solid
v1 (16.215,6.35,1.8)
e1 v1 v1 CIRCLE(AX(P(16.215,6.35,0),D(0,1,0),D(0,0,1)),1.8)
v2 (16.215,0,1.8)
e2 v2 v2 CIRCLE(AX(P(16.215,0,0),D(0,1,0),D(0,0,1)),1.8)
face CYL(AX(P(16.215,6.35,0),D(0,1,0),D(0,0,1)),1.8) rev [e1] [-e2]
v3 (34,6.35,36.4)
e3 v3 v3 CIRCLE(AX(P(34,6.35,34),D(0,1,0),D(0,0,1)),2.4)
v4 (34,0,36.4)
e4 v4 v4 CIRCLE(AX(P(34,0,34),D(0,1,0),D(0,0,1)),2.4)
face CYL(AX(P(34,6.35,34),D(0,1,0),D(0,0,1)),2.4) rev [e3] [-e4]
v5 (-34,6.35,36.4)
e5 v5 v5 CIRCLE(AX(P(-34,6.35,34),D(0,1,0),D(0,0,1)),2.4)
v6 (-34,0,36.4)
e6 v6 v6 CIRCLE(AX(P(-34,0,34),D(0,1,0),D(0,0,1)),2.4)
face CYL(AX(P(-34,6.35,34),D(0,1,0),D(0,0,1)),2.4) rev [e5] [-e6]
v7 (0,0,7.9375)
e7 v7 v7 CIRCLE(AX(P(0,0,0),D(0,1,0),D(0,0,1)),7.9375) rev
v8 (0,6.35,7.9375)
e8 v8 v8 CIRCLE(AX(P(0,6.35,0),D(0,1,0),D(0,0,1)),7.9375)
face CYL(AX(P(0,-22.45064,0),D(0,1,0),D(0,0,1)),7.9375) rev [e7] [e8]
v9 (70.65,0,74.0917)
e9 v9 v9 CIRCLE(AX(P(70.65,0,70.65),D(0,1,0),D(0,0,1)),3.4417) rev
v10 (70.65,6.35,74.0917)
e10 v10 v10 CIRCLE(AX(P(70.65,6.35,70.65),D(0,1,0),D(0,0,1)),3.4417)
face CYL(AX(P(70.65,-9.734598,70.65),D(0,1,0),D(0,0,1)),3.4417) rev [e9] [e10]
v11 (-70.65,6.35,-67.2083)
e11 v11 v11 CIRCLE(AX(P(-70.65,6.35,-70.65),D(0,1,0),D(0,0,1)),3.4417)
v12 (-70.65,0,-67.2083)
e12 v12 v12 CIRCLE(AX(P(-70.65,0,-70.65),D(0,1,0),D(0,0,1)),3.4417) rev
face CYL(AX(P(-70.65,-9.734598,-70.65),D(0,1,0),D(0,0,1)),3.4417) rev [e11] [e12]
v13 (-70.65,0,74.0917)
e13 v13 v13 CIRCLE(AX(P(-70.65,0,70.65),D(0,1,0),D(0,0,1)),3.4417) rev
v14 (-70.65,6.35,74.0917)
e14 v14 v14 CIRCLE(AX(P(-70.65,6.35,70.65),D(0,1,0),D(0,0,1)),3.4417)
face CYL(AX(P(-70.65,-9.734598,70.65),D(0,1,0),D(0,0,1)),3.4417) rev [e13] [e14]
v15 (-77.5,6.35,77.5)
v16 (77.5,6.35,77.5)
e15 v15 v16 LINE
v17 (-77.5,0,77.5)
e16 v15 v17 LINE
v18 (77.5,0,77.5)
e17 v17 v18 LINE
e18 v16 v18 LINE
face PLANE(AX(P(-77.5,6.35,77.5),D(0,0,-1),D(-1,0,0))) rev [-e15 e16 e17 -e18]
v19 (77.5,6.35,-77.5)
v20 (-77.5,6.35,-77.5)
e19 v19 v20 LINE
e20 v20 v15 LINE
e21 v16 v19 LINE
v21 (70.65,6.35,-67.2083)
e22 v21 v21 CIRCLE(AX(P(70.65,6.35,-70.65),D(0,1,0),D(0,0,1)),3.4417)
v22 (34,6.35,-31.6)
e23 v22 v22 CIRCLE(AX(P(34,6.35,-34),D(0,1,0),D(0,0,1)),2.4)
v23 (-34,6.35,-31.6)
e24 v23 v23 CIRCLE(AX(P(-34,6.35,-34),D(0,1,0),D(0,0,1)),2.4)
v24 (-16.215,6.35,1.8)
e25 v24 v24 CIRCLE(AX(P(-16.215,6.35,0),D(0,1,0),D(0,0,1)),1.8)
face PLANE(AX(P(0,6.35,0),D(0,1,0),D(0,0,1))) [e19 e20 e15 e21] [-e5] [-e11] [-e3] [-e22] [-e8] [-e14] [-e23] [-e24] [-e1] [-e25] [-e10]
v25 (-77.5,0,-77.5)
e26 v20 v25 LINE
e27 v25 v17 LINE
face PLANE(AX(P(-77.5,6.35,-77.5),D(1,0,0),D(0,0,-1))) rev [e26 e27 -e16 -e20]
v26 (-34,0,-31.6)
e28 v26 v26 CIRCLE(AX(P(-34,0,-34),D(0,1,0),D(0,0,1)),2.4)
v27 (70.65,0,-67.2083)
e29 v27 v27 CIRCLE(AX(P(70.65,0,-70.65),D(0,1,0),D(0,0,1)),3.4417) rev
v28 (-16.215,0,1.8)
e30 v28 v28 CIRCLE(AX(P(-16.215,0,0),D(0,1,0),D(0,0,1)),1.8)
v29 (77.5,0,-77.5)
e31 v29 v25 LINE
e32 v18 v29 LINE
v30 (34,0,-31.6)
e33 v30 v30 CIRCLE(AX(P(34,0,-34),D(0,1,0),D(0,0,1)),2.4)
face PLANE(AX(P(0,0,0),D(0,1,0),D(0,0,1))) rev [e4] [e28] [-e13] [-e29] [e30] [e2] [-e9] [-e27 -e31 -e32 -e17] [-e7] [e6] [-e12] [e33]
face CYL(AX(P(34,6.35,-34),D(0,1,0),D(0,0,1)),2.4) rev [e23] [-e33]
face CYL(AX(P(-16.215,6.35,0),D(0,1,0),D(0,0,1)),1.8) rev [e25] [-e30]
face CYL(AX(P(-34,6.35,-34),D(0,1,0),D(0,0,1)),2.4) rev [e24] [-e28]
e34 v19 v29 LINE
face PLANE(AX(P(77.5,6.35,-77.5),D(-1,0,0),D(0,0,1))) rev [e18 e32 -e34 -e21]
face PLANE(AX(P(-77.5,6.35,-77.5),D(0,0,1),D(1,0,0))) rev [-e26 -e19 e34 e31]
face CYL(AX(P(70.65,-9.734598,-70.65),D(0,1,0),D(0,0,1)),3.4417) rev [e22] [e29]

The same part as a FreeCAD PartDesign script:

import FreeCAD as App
import Part
import Sketcher
Q = App.Units.Quantity


def add_polygon(sketch, points):
    """Adds a closed chain of lines whose ends are joined by coincident constraints."""
    first, n = sketch.GeometryCount, len(points)
    for a, b in zip(points, points[1:] + points[:1]):
        sketch.addGeometry(Part.LineSegment(App.Vector(*a, 0), App.Vector(*b, 0)), False)
    for i in range(n):
        sketch.addConstraint(Sketcher.Constraint("Coincident", first + i, 2, first + (i + 1) % n, 1))

doc = App.newDocument("Part")
body = doc.addObject("PartDesign::Body", "Body")

sketch1 = body.newObject("Sketcher::SketchObject", "Sketch")
sketch1.AttachmentSupport = (doc.getObject("XZ_Plane"), [""])
sketch1.MapMode = "FlatFace"
add_polygon(sketch1, [(-78, -78), (-78, 78), (78, 78), (78, -78)])
sketch1.addConstraint([
    Sketcher.Constraint("Vertical", 0),
    Sketcher.Constraint("Horizontal", 1),
    Sketcher.Constraint("Vertical", 2),
    Sketcher.Constraint("Horizontal", 3),
    Sketcher.Constraint("Symmetric", 0, 2, 2, 2, -1, 1),
    Sketcher.Constraint("Equal", 3, 0),
    Sketcher.Constraint("DistanceX", 1, 1, 1, 2, Q("155 mm")),
])
pad1 = body.newObject("PartDesign::Pad", "Pad")
pad1.Profile = sketch1
pad1.Length = 6.35
pad1.Reversed = True

sketch2 = body.newObject("Sketcher::SketchObject", "Sketch001")
sketch2.AttachmentSupport = (doc.getObject("XZ_Plane"), [""])
sketch2.MapMode = "FlatFace"
sketch2.AttachmentOffset = App.Placement(App.Vector(0, 0, -6.35), App.Rotation())
sketch2.addGeometry([
    Part.Circle(App.Vector(-70.7, -70.7, 0), App.Vector(0, 0, 1), 3.4),
    Part.Circle(App.Vector(70.7, -70.7, 0), App.Vector(0, 0, 1), 3.4),
    Part.Circle(App.Vector(70.7, 70.7, 0), App.Vector(0, 0, 1), 3.4),
    Part.Circle(App.Vector(-70.7, 70.7, 0), App.Vector(0, 0, 1), 3.4),
], False)
sketch2.addConstraint([
    Sketcher.Constraint("Equal", 0, 1),
    Sketcher.Constraint("Equal", 1, 2),
    Sketcher.Constraint("Equal", 2, 3),
    Sketcher.Constraint("Symmetric", 0, 3, 2, 3, -1, 1),
    Sketcher.Constraint("Symmetric", 1, 3, 3, 3, -1, 1),
    Sketcher.Constraint("Symmetric", 0, 3, 1, 3, -2),
    Sketcher.Constraint("Diameter", 0, Q("6.8834 mm")),
    Sketcher.Constraint("DistanceX", 0, 3, 1, 3, Q("141.3 mm")),
    Sketcher.Constraint("DistanceY", 1, 3, 2, 3, Q("141.3 mm")),
])
pocket1 = body.newObject("PartDesign::Pocket", "Pocket")
pocket1.Profile = sketch2
pocket1.Length = 6.35
pocket1.Reversed = True

sketch3 = body.newObject("Sketcher::SketchObject", "Sketch002")
sketch3.AttachmentSupport = (doc.getObject("XZ_Plane"), [""])
sketch3.MapMode = "FlatFace"
sketch3.AttachmentOffset = App.Placement(App.Vector(0, 0, -6.35), App.Rotation())
sketch3.addGeometry(Part.Circle(App.Vector(0, 0, 0), App.Vector(0, 0, 1), 8), False)
sketch3.addConstraint([
    Sketcher.Constraint("Coincident", 0, 3, -1, 1),
    Sketcher.Constraint("Diameter", 0, Q("15.875 mm")),
])
pocket2 = body.newObject("PartDesign::Pocket", "Pocket001")
pocket2.Profile = sketch3
pocket2.Length = 6.35
pocket2.Reversed = True

sketch4 = body.newObject("Sketcher::SketchObject", "Sketch003")
sketch4.AttachmentSupport = (doc.getObject("XZ_Plane"), [""])
sketch4.MapMode = "FlatFace"
sketch4.AttachmentOffset = App.Placement(App.Vector(0, 0, -6.35), App.Rotation())
sketch4.addGeometry([
    Part.Circle(App.Vector(-34, -34, 0), App.Vector(0, 0, 1), 2.4),
    Part.Circle(App.Vector(34, -34, 0), App.Vector(0, 0, 1), 2.4),
    Part.Circle(App.Vector(34, 34, 0), App.Vector(0, 0, 1), 2.4),
    Part.Circle(App.Vector(-34, 34, 0), App.Vector(0, 0, 1), 2.4),
], False)
sketch4.addConstraint([
    Sketcher.Constraint("Equal", 0, 1),
    Sketcher.Constraint("Equal", 1, 2),
    Sketcher.Constraint("Equal", 2, 3),
    Sketcher.Constraint("Symmetric", 0, 3, 2, 3, -1, 1),
    Sketcher.Constraint("Symmetric", 1, 3, 3, 3, -1, 1),
    Sketcher.Constraint("Symmetric", 0, 3, 1, 3, -2),
    Sketcher.Constraint("Diameter", 0, Q("4.8 mm")),
    Sketcher.Constraint("DistanceX", 0, 3, -1, 1, Q("34 mm")),
    Sketcher.Constraint("DistanceY", 0, 3, -1, 1, Q("34 mm")),
])
doc.recompute()
hole = body.newObject("PartDesign::Hole", "Hole")
hole.Profile = sketch4
hole.ThreadType = "None"
hole.Diameter = 4.8
hole.DepthType = "ThroughAll"
hole.Reversed = True

sketch5 = body.newObject("Sketcher::SketchObject", "Sketch004")
sketch5.AttachmentSupport = (doc.getObject("XZ_Plane"), [""])
sketch5.MapMode = "FlatFace"
sketch5.AttachmentOffset = App.Placement(App.Vector(0, 0, -6.35), App.Rotation())
sketch5.addGeometry([
    Part.Circle(App.Vector(16.2, 0, 0), App.Vector(0, 0, 1), 1.8),
    Part.Circle(App.Vector(-16.2, 0, 0), App.Vector(0, 0, 1), 1.8),
], False)
sketch5.addConstraint([
    Sketcher.Constraint("Equal", 0, 1),
    Sketcher.Constraint("Symmetric", 0, 3, 1, 3, -1, 1),
    Sketcher.Constraint("PointOnObject", 0, 3, -1),
    Sketcher.Constraint("Diameter", 0, Q("3.6 mm")),
    Sketcher.Constraint("DistanceX", 1, 3, 0, 3, Q("32.43 mm")),
])
doc.recompute()
hole2 = body.newObject("PartDesign::Hole", "Hole001")
hole2.Profile = sketch5
hole2.ThreadType = "None"
hole2.Diameter = 3.6
hole2.DepthType = "ThroughAll"
hole2.Reversed = True

doc.recompute()
